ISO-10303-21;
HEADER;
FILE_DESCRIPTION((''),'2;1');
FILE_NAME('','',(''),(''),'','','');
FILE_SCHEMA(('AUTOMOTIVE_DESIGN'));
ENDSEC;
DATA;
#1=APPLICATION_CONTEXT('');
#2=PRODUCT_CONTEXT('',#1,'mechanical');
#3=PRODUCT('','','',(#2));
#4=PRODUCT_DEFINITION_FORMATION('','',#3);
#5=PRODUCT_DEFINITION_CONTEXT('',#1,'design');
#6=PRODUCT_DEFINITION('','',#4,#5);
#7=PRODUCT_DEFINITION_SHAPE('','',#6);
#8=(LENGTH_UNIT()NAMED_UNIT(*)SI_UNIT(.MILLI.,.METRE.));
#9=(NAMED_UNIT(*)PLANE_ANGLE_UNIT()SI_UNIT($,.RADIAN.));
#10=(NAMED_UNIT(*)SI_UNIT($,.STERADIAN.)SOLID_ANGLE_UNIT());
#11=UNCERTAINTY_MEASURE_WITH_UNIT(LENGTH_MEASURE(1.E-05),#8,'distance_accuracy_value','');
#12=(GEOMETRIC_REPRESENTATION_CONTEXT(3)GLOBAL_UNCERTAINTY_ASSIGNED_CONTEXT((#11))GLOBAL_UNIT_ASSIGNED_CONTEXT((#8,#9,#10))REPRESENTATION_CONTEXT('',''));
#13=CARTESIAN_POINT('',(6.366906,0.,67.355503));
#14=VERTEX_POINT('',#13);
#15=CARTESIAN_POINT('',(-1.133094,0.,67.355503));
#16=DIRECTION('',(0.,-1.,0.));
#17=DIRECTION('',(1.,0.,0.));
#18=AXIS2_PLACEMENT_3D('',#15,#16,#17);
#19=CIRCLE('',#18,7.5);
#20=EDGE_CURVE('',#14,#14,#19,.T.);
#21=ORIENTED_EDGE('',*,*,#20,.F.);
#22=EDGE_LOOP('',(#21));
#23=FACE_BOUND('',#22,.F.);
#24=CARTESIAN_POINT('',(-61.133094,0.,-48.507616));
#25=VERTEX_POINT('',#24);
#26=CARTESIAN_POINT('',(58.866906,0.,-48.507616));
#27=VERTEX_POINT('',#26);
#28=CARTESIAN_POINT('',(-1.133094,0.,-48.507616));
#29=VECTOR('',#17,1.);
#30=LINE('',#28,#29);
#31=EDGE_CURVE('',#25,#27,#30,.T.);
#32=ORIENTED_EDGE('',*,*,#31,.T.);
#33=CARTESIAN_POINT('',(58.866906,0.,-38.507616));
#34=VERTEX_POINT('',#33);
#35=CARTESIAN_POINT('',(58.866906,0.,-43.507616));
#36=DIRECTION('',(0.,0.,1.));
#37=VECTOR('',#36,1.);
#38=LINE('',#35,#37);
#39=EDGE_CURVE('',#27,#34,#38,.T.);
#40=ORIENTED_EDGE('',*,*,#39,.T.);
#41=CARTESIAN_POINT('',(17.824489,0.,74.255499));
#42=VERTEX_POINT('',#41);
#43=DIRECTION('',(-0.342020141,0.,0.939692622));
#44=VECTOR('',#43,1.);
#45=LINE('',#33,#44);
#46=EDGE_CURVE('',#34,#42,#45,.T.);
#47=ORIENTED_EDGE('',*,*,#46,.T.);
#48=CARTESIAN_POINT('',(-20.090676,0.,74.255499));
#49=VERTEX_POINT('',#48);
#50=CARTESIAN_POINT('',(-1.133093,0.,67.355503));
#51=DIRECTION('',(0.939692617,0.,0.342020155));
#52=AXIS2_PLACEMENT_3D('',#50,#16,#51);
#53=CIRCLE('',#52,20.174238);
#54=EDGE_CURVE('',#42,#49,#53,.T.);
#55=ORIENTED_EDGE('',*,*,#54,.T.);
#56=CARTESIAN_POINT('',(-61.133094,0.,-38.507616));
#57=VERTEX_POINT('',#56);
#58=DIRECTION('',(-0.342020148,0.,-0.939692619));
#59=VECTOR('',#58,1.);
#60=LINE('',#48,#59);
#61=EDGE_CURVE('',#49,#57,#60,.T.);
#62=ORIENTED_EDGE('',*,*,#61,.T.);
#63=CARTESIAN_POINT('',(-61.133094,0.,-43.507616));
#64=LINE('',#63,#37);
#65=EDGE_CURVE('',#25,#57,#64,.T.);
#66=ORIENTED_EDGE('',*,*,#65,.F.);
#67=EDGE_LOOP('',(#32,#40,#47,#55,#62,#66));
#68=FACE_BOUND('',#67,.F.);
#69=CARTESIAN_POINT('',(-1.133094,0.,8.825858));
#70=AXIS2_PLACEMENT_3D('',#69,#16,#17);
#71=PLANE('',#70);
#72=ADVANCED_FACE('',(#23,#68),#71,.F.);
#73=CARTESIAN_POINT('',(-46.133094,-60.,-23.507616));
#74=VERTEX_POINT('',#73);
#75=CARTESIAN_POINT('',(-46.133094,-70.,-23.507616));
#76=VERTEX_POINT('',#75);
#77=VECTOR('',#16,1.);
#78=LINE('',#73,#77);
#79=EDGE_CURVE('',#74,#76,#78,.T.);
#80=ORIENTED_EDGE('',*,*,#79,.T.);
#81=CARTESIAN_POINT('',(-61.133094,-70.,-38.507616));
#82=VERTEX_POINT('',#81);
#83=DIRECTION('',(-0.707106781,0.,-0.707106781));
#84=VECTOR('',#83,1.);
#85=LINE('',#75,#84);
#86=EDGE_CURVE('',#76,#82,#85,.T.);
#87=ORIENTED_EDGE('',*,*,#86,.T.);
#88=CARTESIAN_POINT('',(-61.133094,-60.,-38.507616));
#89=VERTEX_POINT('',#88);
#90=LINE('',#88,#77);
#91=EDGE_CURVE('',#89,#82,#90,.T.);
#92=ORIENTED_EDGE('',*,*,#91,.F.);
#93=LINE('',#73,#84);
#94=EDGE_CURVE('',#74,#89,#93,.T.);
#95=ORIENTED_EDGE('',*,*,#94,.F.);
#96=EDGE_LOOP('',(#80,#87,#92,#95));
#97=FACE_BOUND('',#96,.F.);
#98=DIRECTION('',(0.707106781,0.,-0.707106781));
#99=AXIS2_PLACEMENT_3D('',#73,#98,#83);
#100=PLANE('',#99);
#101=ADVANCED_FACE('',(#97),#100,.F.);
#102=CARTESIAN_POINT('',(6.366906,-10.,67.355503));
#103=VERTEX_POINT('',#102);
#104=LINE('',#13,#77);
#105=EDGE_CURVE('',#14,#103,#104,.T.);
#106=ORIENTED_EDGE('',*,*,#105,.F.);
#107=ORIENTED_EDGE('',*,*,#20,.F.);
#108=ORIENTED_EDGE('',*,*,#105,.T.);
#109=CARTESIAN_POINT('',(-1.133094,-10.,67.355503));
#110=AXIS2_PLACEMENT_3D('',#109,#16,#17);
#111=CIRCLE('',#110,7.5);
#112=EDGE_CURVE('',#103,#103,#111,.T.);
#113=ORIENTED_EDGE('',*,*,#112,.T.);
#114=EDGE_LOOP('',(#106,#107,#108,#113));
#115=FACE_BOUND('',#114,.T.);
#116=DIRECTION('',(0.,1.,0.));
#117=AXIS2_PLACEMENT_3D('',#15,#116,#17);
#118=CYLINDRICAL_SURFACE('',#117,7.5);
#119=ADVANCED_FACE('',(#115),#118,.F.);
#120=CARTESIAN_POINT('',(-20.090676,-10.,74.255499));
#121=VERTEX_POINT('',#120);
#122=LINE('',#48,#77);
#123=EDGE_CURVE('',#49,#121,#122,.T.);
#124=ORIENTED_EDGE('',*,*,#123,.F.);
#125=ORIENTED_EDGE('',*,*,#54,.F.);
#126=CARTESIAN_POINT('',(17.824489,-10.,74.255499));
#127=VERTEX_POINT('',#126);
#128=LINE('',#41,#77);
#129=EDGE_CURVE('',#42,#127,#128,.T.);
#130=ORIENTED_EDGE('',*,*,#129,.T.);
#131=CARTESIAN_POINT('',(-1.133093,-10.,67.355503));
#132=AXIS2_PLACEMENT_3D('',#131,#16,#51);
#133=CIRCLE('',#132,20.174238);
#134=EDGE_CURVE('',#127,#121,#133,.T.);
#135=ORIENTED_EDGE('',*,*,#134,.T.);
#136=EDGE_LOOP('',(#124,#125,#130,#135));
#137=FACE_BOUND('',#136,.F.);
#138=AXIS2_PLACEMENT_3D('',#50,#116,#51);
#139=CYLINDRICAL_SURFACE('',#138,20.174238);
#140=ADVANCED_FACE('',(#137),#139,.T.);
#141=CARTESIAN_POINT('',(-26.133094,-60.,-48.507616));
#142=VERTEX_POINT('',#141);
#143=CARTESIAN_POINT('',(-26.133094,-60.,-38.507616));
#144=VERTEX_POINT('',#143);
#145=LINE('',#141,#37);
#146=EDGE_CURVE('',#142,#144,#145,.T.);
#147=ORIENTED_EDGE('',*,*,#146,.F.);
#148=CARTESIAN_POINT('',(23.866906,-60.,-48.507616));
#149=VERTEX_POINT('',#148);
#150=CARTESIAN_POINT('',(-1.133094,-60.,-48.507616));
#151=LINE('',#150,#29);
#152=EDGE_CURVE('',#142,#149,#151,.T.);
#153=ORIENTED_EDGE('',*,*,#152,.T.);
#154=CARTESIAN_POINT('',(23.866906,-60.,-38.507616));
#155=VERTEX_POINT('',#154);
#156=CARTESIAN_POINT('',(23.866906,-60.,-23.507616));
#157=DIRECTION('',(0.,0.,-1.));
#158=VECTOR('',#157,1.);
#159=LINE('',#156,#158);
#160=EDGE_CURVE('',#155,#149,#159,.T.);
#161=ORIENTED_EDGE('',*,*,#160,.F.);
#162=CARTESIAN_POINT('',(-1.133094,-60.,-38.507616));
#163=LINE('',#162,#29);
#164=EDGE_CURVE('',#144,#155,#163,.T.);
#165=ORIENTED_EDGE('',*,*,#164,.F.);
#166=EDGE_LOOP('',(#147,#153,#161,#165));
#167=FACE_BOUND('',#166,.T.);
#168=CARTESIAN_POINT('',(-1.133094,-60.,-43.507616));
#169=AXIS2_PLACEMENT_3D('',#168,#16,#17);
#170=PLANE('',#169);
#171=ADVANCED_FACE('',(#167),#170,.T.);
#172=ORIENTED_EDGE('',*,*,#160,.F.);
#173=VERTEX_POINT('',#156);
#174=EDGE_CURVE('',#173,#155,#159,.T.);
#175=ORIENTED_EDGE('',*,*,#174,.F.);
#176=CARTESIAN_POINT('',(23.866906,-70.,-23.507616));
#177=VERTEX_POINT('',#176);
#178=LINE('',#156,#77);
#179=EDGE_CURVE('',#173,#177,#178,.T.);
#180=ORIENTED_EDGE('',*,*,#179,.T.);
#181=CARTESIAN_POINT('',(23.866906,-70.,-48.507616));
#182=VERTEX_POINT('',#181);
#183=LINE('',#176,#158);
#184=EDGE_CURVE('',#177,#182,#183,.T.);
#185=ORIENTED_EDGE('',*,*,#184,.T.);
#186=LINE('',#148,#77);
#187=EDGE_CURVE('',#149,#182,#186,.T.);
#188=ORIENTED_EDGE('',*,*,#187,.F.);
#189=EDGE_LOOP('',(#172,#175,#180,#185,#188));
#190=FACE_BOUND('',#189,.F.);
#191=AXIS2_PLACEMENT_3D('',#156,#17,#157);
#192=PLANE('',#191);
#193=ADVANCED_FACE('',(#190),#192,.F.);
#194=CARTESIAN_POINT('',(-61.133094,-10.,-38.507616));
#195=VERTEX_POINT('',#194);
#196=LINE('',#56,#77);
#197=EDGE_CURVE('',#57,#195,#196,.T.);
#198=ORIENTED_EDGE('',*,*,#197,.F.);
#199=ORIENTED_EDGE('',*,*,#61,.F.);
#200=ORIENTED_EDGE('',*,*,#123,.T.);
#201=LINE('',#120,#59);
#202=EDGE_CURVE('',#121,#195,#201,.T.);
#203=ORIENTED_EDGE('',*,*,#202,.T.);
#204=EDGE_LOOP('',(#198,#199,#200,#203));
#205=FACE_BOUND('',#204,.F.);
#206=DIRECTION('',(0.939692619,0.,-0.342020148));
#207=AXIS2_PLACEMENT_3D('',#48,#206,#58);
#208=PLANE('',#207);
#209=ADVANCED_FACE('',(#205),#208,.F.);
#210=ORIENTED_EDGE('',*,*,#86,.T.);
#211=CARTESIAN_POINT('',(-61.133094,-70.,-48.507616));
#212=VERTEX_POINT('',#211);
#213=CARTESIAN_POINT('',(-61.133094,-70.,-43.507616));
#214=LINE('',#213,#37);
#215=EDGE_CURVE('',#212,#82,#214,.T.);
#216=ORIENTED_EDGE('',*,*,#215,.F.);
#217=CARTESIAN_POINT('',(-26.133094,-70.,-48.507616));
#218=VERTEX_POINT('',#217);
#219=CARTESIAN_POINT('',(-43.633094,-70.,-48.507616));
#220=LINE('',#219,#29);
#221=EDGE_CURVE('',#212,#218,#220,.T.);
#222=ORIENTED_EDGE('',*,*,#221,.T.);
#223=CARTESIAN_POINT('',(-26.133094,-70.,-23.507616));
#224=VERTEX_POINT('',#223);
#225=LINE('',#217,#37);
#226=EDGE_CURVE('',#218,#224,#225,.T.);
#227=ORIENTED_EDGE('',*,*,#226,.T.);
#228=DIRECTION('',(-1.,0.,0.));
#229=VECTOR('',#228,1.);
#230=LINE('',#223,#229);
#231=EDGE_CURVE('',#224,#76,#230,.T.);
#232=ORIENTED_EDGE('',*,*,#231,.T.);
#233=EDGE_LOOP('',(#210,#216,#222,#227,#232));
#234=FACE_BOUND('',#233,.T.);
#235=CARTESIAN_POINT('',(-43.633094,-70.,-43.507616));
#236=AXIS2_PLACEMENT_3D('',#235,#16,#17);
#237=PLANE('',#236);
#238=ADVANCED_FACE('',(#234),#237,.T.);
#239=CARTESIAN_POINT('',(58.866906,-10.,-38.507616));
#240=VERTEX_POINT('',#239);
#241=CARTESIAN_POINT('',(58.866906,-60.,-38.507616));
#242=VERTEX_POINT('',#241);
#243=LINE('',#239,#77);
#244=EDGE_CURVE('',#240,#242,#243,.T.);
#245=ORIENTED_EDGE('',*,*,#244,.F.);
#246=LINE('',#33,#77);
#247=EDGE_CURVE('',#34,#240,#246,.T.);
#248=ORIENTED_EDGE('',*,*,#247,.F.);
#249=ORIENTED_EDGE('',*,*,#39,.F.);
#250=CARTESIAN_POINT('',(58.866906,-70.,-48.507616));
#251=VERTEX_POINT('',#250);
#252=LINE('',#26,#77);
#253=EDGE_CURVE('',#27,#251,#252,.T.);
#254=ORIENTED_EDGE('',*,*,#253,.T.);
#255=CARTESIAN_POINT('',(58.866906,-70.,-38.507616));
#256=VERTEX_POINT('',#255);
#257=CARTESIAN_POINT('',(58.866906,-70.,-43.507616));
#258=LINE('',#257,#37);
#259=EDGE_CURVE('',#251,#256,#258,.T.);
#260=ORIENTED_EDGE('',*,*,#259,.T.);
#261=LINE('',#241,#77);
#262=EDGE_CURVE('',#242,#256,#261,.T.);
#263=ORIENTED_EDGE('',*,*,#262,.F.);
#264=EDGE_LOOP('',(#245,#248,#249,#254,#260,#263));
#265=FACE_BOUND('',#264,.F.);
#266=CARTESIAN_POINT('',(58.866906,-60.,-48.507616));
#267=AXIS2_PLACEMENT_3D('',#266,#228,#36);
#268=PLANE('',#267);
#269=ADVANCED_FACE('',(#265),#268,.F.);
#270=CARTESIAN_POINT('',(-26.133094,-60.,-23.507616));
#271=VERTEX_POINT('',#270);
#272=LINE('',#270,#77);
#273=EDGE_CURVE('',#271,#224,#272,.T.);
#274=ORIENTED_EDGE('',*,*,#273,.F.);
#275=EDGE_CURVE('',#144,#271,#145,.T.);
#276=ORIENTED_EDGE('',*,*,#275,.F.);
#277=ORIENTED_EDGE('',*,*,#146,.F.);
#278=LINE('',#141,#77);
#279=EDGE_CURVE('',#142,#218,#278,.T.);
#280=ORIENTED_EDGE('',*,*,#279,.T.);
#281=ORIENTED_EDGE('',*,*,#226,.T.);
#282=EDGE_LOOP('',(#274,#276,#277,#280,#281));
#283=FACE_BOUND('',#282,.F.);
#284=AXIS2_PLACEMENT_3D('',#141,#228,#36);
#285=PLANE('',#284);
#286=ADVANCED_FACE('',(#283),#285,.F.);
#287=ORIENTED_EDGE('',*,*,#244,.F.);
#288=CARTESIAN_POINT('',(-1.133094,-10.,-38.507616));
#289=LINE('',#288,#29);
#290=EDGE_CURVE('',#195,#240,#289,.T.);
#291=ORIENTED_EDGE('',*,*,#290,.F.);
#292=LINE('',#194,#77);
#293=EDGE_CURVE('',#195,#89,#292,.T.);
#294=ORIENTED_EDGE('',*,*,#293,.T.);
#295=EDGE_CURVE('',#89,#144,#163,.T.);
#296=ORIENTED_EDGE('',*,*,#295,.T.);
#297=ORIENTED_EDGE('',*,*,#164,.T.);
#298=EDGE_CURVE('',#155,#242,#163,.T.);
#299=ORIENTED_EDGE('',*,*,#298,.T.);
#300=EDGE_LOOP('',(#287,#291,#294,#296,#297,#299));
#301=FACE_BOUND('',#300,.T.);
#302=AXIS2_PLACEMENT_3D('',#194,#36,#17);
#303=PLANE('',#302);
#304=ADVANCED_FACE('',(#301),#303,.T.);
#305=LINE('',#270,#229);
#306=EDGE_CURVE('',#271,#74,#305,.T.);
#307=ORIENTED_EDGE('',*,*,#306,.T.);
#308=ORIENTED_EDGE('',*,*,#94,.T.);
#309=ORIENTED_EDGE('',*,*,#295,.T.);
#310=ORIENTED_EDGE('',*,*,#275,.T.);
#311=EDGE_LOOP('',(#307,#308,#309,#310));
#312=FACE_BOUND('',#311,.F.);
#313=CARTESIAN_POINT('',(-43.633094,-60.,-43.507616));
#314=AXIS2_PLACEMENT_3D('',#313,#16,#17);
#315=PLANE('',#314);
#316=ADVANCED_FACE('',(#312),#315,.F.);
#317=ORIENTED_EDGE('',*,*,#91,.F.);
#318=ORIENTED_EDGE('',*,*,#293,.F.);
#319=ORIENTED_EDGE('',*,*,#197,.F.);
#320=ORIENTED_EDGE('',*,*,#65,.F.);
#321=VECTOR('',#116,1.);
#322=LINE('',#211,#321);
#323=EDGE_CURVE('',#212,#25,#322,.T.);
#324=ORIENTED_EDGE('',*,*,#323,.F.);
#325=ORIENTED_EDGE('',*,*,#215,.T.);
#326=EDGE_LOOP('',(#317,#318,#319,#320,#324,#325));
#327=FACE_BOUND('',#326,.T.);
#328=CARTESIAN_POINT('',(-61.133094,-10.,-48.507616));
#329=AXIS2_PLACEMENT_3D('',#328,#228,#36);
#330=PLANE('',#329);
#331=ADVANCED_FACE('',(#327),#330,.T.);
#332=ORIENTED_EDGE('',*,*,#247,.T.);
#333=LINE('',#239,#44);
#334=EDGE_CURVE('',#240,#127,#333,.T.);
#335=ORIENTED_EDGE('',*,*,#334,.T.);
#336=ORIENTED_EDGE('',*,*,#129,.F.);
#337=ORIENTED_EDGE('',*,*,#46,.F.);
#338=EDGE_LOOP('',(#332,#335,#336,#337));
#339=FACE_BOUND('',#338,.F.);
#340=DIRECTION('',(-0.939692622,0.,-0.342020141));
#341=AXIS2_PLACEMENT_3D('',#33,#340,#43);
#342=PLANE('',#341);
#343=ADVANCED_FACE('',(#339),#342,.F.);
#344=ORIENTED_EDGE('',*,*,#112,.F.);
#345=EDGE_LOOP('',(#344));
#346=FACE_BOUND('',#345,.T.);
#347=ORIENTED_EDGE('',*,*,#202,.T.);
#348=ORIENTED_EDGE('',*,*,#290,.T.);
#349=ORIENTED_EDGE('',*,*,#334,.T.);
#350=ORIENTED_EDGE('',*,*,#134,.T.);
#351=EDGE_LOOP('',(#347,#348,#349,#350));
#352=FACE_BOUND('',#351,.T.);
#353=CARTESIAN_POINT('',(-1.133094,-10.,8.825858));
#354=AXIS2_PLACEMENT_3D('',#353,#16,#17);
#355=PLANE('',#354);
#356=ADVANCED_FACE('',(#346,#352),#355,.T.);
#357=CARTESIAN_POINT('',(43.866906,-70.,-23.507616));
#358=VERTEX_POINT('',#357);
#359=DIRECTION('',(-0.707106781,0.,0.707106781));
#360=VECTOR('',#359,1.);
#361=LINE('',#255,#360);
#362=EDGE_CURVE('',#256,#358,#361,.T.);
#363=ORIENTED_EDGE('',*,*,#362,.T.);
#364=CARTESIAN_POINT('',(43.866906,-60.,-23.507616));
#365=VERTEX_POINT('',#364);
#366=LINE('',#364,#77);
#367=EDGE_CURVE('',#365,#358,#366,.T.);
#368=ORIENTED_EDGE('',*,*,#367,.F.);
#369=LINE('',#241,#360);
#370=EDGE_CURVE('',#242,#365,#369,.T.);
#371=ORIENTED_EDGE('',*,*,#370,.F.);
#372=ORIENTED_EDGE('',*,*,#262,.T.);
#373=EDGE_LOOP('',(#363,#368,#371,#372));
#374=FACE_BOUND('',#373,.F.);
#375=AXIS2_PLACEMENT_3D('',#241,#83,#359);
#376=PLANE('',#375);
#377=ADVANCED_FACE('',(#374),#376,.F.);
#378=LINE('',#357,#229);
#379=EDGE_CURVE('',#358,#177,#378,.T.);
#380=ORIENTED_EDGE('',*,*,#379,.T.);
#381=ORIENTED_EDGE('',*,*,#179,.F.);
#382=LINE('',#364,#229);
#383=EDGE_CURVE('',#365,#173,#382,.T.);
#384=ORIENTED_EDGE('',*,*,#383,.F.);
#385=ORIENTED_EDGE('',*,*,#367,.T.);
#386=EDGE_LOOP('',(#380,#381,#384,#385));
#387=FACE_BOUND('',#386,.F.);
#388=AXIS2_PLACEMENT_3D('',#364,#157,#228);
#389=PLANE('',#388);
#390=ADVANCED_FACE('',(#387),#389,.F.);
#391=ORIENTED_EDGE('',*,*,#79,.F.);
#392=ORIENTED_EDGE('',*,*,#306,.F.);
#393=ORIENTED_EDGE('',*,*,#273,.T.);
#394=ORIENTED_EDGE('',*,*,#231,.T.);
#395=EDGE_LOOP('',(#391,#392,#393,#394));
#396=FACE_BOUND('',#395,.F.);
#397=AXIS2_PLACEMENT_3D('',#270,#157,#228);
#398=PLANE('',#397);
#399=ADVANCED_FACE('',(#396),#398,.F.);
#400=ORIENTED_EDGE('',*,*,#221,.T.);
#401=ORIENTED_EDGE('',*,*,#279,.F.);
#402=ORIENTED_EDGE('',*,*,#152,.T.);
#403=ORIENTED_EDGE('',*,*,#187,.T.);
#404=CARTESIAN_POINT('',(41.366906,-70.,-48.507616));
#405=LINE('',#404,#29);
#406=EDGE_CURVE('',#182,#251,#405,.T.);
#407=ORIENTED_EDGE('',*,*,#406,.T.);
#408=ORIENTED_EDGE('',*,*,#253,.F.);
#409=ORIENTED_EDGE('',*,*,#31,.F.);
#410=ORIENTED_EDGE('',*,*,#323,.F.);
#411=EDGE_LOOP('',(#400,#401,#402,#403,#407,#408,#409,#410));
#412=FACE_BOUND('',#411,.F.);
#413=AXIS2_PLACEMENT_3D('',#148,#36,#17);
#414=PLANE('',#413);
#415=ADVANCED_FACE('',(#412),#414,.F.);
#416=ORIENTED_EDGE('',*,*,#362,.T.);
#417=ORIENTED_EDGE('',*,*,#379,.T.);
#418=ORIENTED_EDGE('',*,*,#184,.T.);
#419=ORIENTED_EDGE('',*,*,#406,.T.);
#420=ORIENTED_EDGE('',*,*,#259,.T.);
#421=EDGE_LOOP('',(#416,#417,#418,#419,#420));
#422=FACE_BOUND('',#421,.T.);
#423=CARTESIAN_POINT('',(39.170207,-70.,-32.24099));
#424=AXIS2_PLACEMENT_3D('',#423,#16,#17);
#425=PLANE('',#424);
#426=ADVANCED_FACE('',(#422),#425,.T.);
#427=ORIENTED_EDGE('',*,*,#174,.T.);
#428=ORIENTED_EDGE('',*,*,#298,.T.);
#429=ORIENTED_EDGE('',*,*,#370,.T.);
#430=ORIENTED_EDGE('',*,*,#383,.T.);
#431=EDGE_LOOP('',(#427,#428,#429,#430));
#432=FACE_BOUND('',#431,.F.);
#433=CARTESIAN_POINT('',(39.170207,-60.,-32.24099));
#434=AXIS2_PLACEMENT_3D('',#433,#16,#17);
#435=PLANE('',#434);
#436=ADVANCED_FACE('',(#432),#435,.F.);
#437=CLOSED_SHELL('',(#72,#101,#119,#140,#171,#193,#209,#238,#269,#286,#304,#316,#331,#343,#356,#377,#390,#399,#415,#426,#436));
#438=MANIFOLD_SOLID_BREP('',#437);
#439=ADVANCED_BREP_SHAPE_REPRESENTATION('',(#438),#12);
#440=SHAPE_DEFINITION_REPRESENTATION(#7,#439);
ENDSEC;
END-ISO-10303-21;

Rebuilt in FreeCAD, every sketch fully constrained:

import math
import FreeCAD as App
import Part
import Sketcher

V = App.Vector
Q = App.Units.Quantity

doc = App.newDocument("Part")
body = doc.addObject("PartDesign::Body", "Body")

sketch1 = body.newObject("Sketcher::SketchObject", "Sketch")
sketch1.AttachmentSupport = (doc.getObject("XZ_Plane"), [""])
sketch1.MapMode = "FlatFace"
sketch1.addGeometry([
    Part.LineSegment(V(-20, 74, 0), V(-61, -39, 0)),
    Part.LineSegment(V(-61, -39, 0), V(-61, -49, 0)),
    Part.LineSegment(V(-61, -49, 0), V(59, -49, 0)),
    Part.LineSegment(V(59, -49, 0), V(59, -39, 0)),
    Part.LineSegment(V(59, -39, 0), V(18, 74, 0)),
    Part.ArcOfCircle(Part.Circle(V(-1, 67, 0), V(0, 0, 1), 20), math.radians(20), math.radians(160)),
    Part.Circle(V(-1, 67, 0), V(0, 0, 1), 8),
], False)
sketch1.addConstraint([
    Sketcher.Constraint("Coincident", 0, 2, 1, 1),
    Sketcher.Constraint("Coincident", 1, 2, 2, 1),
    Sketcher.Constraint("Coincident", 2, 2, 3, 1),
    Sketcher.Constraint("Coincident", 3, 2, 4, 1),
    Sketcher.Constraint("Tangent", 4, 2, 5, 1),
    Sketcher.Constraint("Tangent", 5, 2, 0, 1),
    Sketcher.Constraint("Vertical", 1),
    Sketcher.Constraint("Horizontal", 2),
    Sketcher.Constraint("Vertical", 3),
    Sketcher.Constraint("Coincident", 6, 3, 5, 3),
    Sketcher.Constraint("Horizontal", 0, 2, 3, 2),
    Sketcher.Constraint("Horizontal", 4, 2, 5, 2),
    Sketcher.Constraint("Diameter", 6, Q("15 mm")),
    Sketcher.Constraint("DistanceX", 2, 1, 2, 2, Q("120 mm")),
    Sketcher.Constraint("DistanceY", 1, 2, 1, 1, Q("10 mm")),
    Sketcher.Constraint("Angle", 0, Q("-110 deg")),
    Sketcher.Constraint("Distance", 0, Q("120.000001 mm")),
    Sketcher.Constraint("DistanceY", -1, 1, 4, 2, Q("74.255499 mm")),
    Sketcher.Constraint("DistanceX", -1, 1, 4, 2, Q("17.824489 mm")),
])
pad1 = body.newObject("PartDesign::Pad", "Pad")
pad1.Profile = sketch1
pad1.Length = 10

sketch2 = body.newObject("Sketcher::SketchObject", "Sketch001")
sketch2.AttachmentSupport = (doc.getObject("XZ_Plane"), [""])
sketch2.MapMode = "FlatFace"
sketch2.AttachmentOffset = App.Placement(V(0, 0, 10), App.Rotation())
sketch2.addGeometry([
    Part.LineSegment(V(-61, -39, 0), V(-61, -49, 0)),
    Part.LineSegment(V(-61, -49, 0), V(59, -49, 0)),
    Part.LineSegment(V(59, -49, 0), V(59, -39, 0)),
    Part.LineSegment(V(59, -39, 0), V(-61, -39, 0)),
], False)
sketch2.addConstraint([
    Sketcher.Constraint("Coincident", 0, 2, 1, 1),
    Sketcher.Constraint("Coincident", 1, 2, 2, 1),
    Sketcher.Constraint("Coincident", 2, 2, 3, 1),
    Sketcher.Constraint("Coincident", 3, 2, 0, 1),
    Sketcher.Constraint("Vertical", 0),
    Sketcher.Constraint("Horizontal", 1),
    Sketcher.Constraint("Vertical", 2),
    Sketcher.Constraint("Horizontal", 3),
    Sketcher.Constraint("DistanceX", 1, 1, 1, 2, Q("120 mm")),
    Sketcher.Constraint("DistanceY", 0, 2, 0, 1, Q("10 mm")),
    Sketcher.Constraint("DistanceX", 0, 2, -1, 1, Q("61.133094 mm")),
    Sketcher.Constraint("DistanceY", 0, 2, -1, 1, Q("48.507616 mm")),
])
pad2 = body.newObject("PartDesign::Pad", "Pad001")
pad2.Profile = sketch2
pad2.Length = 50

sketch3 = body.newObject("Sketcher::SketchObject", "Sketch002")
sketch3.AttachmentSupport = (doc.getObject("XZ_Plane"), [""])
sketch3.MapMode = "FlatFace"
sketch3.AttachmentOffset = App.Placement(V(0, 0, 60), App.Rotation())
sketch3.addGeometry([
    Part.LineSegment(V(24, -24, 0), V(24, -49, 0)),
    Part.LineSegment(V(24, -49, 0), V(59, -49, 0)),
    Part.LineSegment(V(59, -49, 0), V(59, -39, 0)),
    Part.LineSegment(V(59, -39, 0), V(44, -24, 0)),
    Part.LineSegment(V(44, -24, 0), V(24, -24, 0)),
    Part.LineSegment(V(-61, -39, 0), V(-61, -49, 0)),
    Part.LineSegment(V(-61, -49, 0), V(-26, -49, 0)),
    Part.LineSegment(V(-26, -49, 0), V(-26, -24, 0)),
    Part.LineSegment(V(-26, -24, 0), V(-46, -24, 0)),
    Part.LineSegment(V(-46, -24, 0), V(-61, -39, 0)),
], False)
sketch3.addConstraint([
    Sketcher.Constraint("Coincident", 0, 2, 1, 1),
    Sketcher.Constraint("Coincident", 1, 2, 2, 1),
    Sketcher.Constraint("Coincident", 2, 2, 3, 1),
    Sketcher.Constraint("Coincident", 3, 2, 4, 1),
    Sketcher.Constraint("Coincident", 4, 2, 0, 1),
    Sketcher.Constraint("Coincident", 5, 2, 6, 1),
    Sketcher.Constraint("Coincident", 6, 2, 7, 1),
    Sketcher.Constraint("Coincident", 7, 2, 8, 1),
    Sketcher.Constraint("Coincident", 8, 2, 9, 1),
    Sketcher.Constraint("Coincident", 9, 2, 5, 1),
    Sketcher.Constraint("Vertical", 0),
    Sketcher.Constraint("Horizontal", 1),
    Sketcher.Constraint("Vertical", 2),
    Sketcher.Constraint("Horizontal", 4),
    Sketcher.Constraint("Vertical", 5),
    Sketcher.Constraint("Horizontal", 6),
    Sketcher.Constraint("Vertical", 7),
    Sketcher.Constraint("Horizontal", 8),
    Sketcher.Constraint("Perpendicular", 3, 9),
    Sketcher.Constraint("Horizontal", 1, 2, 5, 2),
    Sketcher.Constraint("Horizontal", 4, 2, 7, 2),
    Sketcher.Constraint("Horizontal", 2, 2, 9, 2),
    Sketcher.Constraint("Equal", 1, 6),
    Sketcher.Constraint("Equal", 4, 8),
    Sketcher.Constraint("DistanceX", 1, 1, 1, 2, Q("35 mm")),
    Sketcher.Constraint("DistanceX", 4, 2, 4, 1, Q("20 mm")),
    Sketcher.Constraint("DistanceY", 0, 2, 0, 1, Q("25 mm")),
    Sketcher.Constraint("DistanceX", 5, 2, 0, 2, Q("85 mm")),
    Sketcher.Constraint("DistanceX", -1, 1, 0, 2, Q("23.866906 mm")),
    Sketcher.Constraint("DistanceY", 0, 2, -1, 1, Q("48.507616 mm")),
])
pad3 = body.newObject("PartDesign::Pad", "Pad002")
pad3.Profile = sketch3
pad3.Length = 10

doc.recompute()
